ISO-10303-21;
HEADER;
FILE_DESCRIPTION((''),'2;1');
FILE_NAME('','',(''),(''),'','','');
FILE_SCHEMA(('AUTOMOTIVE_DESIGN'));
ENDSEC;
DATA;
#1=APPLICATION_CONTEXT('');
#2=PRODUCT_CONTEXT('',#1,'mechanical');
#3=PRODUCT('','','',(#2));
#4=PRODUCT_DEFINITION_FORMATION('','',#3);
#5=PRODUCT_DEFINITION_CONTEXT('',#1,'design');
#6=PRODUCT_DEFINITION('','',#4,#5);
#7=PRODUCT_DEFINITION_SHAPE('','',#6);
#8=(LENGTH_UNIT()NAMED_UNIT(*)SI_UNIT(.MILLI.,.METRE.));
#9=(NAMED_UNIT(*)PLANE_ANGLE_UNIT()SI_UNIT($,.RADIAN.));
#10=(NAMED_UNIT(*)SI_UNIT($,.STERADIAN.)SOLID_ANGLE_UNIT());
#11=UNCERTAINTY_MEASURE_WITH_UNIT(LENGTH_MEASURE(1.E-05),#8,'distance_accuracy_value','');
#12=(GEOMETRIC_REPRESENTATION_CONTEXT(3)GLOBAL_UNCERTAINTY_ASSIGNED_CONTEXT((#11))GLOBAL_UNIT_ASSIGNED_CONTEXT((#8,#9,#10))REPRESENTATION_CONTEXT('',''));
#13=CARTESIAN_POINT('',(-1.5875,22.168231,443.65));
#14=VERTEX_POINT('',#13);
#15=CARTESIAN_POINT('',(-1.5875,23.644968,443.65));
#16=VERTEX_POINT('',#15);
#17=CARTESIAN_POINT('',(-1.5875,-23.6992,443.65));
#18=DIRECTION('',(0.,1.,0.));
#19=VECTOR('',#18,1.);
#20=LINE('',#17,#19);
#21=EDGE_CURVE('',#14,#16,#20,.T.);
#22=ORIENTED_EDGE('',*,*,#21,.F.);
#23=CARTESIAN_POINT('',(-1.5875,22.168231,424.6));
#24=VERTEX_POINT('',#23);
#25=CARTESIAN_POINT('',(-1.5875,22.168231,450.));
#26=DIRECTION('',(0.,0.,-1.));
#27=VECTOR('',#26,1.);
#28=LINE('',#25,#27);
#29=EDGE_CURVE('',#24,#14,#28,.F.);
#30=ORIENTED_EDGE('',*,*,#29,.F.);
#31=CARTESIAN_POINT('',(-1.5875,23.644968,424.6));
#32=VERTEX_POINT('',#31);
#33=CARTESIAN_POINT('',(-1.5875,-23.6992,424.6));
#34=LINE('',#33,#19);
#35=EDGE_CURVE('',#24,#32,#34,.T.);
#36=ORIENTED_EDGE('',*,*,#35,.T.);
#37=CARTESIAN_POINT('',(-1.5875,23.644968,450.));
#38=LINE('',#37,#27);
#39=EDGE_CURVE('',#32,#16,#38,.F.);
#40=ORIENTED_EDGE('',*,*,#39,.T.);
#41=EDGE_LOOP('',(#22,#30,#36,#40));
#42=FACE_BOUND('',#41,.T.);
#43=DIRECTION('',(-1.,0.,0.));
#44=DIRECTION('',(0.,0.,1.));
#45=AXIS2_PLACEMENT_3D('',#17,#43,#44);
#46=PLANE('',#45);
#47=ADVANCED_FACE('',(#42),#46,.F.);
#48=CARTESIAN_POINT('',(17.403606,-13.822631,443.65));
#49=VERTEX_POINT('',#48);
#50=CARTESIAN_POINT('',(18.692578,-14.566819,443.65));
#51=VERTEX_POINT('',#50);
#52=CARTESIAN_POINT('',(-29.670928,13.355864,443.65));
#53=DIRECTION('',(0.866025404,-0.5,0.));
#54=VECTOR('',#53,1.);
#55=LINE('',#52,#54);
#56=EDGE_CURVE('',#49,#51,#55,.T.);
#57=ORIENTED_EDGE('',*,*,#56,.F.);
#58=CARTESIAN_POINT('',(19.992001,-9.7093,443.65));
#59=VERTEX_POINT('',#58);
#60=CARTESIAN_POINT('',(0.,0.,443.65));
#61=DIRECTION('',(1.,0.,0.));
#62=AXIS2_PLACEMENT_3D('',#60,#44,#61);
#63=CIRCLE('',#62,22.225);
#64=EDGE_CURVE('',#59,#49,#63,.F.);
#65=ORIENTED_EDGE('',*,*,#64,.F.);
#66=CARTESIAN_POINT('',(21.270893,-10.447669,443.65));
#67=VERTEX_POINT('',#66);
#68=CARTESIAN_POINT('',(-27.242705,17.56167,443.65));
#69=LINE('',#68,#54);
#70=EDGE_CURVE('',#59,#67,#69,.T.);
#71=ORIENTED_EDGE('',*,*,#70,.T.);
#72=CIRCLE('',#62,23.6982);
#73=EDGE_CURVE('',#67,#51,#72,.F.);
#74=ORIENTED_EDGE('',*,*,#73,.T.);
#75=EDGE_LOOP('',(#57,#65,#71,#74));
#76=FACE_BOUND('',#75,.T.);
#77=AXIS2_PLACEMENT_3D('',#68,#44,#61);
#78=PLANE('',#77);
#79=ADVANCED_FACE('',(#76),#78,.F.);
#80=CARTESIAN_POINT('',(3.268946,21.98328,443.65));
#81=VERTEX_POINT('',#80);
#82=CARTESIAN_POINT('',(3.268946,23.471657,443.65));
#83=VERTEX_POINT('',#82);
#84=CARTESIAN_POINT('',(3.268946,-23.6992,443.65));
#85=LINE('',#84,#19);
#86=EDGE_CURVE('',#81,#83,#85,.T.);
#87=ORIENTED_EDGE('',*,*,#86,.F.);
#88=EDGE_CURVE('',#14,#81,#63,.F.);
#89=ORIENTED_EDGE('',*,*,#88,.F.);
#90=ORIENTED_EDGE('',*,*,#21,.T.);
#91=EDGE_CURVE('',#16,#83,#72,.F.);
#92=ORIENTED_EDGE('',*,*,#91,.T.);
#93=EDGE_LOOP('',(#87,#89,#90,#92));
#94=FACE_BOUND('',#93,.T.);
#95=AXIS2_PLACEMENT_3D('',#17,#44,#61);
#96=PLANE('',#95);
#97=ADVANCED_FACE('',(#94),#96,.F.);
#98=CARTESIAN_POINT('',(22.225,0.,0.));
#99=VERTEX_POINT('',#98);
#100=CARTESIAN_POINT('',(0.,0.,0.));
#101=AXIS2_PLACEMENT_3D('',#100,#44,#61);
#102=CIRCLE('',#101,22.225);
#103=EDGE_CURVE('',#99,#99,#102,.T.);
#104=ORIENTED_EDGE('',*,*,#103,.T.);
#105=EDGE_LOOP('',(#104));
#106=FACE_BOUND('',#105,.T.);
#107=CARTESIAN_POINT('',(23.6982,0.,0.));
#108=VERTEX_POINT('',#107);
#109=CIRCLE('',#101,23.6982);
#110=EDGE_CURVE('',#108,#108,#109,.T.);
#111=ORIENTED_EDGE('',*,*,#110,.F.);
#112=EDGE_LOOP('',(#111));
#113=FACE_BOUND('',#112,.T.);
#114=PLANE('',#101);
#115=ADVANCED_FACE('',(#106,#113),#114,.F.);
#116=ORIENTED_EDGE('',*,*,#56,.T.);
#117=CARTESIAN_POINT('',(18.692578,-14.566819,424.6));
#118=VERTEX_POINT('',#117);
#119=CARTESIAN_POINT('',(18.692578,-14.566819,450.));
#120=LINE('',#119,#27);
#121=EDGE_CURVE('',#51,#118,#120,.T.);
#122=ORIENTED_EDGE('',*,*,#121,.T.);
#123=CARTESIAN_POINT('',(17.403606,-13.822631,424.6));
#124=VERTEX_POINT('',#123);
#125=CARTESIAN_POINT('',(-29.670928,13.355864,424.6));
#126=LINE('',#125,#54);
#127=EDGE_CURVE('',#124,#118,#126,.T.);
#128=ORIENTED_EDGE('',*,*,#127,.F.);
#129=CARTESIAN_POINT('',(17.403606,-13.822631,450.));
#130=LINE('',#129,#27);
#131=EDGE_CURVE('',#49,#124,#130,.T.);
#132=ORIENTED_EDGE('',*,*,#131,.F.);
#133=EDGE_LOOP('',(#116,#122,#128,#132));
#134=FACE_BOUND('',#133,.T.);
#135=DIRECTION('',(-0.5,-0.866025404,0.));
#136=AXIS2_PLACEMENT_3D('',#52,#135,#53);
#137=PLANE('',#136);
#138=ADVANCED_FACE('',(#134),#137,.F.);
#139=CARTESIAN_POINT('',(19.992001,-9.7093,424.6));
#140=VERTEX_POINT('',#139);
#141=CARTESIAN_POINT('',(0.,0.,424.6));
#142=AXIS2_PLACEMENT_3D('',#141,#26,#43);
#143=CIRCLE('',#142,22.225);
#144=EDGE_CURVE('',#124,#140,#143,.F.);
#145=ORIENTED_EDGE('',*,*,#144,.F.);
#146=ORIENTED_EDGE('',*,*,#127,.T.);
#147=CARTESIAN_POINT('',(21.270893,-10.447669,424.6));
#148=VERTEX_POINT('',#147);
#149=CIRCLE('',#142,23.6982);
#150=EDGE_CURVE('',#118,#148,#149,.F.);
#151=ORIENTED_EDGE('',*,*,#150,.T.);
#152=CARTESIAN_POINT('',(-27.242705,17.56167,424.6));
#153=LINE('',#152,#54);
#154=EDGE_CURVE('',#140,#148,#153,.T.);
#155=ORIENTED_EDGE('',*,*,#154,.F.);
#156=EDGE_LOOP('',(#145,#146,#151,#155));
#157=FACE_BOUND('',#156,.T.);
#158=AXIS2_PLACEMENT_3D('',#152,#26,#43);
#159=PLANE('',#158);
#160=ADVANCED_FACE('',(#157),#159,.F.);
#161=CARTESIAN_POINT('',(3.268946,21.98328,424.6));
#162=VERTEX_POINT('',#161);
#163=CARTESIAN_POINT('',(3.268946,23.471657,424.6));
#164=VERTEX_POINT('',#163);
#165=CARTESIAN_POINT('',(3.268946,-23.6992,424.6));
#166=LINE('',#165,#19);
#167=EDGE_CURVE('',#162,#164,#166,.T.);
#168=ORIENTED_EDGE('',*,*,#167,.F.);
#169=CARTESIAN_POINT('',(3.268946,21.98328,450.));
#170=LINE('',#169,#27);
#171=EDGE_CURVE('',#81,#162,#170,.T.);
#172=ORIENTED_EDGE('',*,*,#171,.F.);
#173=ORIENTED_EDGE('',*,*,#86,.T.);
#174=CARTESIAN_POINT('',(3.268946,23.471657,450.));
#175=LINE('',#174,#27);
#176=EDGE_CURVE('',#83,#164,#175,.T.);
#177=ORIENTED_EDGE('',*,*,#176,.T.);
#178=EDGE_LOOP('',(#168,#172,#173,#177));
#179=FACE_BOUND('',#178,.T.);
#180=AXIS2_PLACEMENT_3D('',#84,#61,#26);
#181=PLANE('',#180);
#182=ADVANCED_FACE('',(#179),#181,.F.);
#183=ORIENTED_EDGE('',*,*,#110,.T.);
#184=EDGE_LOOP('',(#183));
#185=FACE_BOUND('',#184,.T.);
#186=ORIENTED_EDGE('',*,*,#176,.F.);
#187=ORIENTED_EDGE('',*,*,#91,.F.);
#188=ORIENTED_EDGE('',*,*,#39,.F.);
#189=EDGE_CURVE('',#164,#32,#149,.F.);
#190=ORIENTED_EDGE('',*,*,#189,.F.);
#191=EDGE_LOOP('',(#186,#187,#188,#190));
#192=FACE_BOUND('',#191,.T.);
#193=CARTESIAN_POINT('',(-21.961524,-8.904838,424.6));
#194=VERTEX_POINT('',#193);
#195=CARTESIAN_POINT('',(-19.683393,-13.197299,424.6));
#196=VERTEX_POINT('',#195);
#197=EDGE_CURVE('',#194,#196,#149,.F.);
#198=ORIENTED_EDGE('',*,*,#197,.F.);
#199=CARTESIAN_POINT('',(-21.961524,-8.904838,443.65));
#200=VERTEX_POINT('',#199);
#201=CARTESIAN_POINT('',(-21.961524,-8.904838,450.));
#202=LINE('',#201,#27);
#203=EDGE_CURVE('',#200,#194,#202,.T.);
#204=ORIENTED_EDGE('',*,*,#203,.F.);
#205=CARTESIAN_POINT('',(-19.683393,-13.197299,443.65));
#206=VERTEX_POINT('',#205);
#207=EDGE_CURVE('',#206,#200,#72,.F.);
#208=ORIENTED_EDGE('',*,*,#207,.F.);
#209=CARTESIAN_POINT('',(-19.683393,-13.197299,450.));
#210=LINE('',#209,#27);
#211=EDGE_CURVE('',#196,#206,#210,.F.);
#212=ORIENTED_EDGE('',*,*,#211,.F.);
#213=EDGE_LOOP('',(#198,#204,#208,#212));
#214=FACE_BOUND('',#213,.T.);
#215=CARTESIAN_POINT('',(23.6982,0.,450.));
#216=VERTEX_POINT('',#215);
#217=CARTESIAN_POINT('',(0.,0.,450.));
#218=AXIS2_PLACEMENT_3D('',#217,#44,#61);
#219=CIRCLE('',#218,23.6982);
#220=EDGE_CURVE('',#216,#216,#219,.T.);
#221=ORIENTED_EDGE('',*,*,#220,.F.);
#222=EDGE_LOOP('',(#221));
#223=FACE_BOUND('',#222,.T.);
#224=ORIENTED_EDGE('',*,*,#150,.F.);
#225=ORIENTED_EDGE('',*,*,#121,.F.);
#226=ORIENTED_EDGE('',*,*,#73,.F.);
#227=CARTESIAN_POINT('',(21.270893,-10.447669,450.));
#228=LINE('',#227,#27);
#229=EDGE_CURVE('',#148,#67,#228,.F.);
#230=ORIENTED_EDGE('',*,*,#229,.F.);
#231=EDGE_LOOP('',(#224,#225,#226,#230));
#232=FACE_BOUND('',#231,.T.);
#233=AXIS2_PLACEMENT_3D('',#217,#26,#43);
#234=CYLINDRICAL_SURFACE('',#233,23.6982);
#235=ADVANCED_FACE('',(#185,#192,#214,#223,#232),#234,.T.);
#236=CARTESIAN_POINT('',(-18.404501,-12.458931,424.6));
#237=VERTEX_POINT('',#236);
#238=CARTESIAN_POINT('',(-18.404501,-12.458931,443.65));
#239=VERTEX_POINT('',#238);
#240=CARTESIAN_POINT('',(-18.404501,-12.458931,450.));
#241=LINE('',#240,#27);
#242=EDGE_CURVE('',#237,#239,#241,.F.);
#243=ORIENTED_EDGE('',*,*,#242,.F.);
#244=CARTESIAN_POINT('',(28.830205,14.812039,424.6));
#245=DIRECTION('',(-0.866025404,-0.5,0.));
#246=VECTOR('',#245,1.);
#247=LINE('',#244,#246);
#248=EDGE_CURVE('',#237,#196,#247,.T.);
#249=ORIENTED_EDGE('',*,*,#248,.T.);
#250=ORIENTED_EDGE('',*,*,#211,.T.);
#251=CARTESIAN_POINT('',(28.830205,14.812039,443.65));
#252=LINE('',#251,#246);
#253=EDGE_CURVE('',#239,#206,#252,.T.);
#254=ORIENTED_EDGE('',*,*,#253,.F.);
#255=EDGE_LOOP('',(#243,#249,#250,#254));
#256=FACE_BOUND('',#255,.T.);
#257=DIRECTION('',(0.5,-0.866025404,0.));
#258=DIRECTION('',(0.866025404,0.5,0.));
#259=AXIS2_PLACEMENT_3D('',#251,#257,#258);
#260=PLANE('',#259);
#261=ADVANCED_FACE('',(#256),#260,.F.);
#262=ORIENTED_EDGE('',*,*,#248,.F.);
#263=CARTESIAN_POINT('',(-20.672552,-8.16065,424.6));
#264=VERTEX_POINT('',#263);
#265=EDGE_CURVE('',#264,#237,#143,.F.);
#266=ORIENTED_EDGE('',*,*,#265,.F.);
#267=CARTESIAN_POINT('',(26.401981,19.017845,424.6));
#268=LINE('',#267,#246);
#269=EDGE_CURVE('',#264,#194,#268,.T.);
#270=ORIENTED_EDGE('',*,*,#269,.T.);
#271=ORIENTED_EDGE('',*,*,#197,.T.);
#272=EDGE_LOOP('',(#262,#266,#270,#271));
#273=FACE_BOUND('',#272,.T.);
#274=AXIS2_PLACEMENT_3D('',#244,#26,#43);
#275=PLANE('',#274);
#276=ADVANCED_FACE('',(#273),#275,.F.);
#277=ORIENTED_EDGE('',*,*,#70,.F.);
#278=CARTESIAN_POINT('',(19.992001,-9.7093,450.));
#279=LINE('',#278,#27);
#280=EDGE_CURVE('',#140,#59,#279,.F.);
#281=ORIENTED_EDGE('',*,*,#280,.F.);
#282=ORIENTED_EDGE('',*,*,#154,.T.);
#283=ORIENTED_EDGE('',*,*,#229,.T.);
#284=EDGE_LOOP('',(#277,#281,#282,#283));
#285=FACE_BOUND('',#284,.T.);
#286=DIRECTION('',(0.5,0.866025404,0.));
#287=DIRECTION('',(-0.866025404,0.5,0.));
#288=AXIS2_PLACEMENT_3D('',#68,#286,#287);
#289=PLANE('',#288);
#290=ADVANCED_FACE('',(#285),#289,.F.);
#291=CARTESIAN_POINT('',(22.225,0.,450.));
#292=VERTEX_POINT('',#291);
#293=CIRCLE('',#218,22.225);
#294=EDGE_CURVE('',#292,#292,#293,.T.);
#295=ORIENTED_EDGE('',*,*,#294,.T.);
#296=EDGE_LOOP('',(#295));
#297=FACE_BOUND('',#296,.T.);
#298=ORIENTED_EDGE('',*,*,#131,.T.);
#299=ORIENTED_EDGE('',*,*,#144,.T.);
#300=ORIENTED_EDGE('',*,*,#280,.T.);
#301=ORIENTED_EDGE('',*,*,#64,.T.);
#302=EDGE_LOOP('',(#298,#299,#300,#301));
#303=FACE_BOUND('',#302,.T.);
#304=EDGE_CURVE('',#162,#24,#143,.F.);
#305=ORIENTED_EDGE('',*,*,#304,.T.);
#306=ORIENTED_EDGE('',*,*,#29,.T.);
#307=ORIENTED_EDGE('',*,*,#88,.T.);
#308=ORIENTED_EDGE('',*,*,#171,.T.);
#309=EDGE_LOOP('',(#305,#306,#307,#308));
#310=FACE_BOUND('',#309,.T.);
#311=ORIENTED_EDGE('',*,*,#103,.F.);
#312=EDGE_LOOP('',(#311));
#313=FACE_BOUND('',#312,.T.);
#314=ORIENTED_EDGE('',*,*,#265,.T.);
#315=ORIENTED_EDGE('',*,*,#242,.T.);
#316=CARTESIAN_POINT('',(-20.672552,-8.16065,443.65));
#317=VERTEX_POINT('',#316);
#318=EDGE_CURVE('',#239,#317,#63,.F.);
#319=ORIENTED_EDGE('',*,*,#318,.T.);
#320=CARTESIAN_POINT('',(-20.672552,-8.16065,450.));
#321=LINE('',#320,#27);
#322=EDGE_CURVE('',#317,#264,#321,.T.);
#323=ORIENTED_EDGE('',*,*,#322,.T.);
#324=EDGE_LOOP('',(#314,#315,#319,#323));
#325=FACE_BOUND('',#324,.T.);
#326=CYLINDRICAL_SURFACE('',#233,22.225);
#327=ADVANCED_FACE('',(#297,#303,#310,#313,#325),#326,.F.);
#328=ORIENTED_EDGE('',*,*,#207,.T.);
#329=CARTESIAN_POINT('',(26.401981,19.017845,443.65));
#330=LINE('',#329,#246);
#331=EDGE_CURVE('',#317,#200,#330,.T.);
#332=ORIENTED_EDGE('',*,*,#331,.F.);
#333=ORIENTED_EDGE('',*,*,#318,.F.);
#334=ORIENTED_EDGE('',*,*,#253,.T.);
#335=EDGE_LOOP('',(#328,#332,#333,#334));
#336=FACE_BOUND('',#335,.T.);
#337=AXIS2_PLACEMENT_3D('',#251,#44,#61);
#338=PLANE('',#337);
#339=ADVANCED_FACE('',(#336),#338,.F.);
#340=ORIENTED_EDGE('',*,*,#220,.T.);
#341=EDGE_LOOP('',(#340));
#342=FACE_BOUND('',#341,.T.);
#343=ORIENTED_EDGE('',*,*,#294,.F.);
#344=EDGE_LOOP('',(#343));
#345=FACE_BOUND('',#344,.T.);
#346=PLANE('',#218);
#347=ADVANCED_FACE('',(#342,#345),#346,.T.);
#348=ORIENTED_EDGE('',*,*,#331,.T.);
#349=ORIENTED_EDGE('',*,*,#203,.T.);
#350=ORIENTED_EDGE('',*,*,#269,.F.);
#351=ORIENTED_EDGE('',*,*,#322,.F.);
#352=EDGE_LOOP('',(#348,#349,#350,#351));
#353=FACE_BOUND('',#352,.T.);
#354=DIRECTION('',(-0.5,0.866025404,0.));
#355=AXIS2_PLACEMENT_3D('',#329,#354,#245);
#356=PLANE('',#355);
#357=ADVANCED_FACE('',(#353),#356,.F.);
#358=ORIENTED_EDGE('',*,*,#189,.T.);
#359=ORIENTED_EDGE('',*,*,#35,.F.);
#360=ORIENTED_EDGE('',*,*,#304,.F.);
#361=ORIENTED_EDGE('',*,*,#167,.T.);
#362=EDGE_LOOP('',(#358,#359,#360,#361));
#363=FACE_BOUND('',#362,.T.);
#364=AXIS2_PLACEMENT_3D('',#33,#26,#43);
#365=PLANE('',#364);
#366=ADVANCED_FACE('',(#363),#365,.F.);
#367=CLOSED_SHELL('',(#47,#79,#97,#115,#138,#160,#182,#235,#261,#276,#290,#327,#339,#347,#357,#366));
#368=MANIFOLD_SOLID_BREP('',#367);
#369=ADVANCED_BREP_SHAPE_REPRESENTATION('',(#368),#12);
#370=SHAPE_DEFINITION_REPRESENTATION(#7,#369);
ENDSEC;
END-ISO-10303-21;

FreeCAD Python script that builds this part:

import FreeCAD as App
import Part
import Sketcher
from FreeCAD import Vector
Q = App.Units.Quantity


def add_polygon(sketch, points):
    """Adds a closed chain of lines whose ends are joined by coincident constraints."""
    first, n = sketch.GeometryCount, len(points)
    for a, b in zip(points, points[1:] + points[:1]):
        sketch.addGeometry(Part.LineSegment(App.Vector(*a, 0), App.Vector(*b, 0)), False)
    for i in range(n):
        sketch.addConstraint(Sketcher.Constraint("Coincident", first + i, 2, first + (i + 1) % n, 1))

doc = App.newDocument("Part")
body = doc.addObject("PartDesign::Body", "Body")

# Sketch on XY plane
sketch1 = body.newObject("Sketcher::SketchObject", "Sketch")
sketch1.AttachmentSupport = (doc.getObject("XY_Plane"), [""])
sketch1.MapMode = "FlatFace"
sketch1.addGeometry(Part.Circle(Vector(0, 0, 0), Vector(0, 0, 1), 24), False)
sketch1.addGeometry(Part.Circle(Vector(0, 0, 0), Vector(0, 0, 1), 22), False)
sketch1.addConstraint(Sketcher.Constraint("Coincident", 0, 3, -1, 1))
sketch1.addConstraint(Sketcher.Constraint("Coincident", 1, 3, -1, 1))
sketch1.addConstraint(Sketcher.Constraint("Diameter", 1, Q("1.75 in")))
sketch1.addConstraint(Sketcher.Constraint("Diameter", 0, Q("1.866 in")))
pad1 = body.newObject("PartDesign::Pad", "Pad")
pad1.Profile = sketch1
pad1.Length = 450

# Sketch on XZ plane
sketch2 = body.newObject("Sketcher::SketchObject", "Sketch001")
sketch2.AttachmentSupport = (doc.getObject("XZ_Plane"), [""])
sketch2.MapMode = "FlatFace"
sketch2.AttachmentOffset = App.Placement(Vector(0, 0, -21.98328), App.Rotation())
add_polygon(sketch2, [(-1.6, 424.6), (-1.6, 443.6), (3.3, 443.6), (3.3, 424.6)])  # lines 0-3
sketch2.addConstraint(Sketcher.Constraint("Vertical", 0))
sketch2.addConstraint(Sketcher.Constraint("Horizontal", 1))
sketch2.addConstraint(Sketcher.Constraint("Vertical", 2))
sketch2.addConstraint(Sketcher.Constraint("Horizontal", 3))
sketch2.addConstraint(Sketcher.Constraint("DistanceY", 0, 1, 0, 2, Q("0.75 in")))
sketch2.addConstraint(Sketcher.Constraint("DistanceX", 0, 2, -1, 1, Q("0.0625 in")))
sketch2.addConstraint(Sketcher.Constraint("DistanceY", -1, 1, 0, 2, 443.65))
sketch2.addConstraint(Sketcher.Constraint("DistanceX", 1, 1, 1, 2, 4.856446))
pocket1 = body.newObject("PartDesign::Pocket", "Pocket")
pocket1.Profile = sketch2
pocket1.Length = 1.71492
doc.recompute()

polarpattern = body.newObject("PartDesign::PolarPattern", "PolarPattern")
polarpattern.Originals = [pocket1]
polarpattern.Axis = (doc.getObject("Z_Axis"), [""])
polarpattern.Angle = 360
polarpattern.Occurrences = 3
body.Tip = polarpattern

doc.recompute()
